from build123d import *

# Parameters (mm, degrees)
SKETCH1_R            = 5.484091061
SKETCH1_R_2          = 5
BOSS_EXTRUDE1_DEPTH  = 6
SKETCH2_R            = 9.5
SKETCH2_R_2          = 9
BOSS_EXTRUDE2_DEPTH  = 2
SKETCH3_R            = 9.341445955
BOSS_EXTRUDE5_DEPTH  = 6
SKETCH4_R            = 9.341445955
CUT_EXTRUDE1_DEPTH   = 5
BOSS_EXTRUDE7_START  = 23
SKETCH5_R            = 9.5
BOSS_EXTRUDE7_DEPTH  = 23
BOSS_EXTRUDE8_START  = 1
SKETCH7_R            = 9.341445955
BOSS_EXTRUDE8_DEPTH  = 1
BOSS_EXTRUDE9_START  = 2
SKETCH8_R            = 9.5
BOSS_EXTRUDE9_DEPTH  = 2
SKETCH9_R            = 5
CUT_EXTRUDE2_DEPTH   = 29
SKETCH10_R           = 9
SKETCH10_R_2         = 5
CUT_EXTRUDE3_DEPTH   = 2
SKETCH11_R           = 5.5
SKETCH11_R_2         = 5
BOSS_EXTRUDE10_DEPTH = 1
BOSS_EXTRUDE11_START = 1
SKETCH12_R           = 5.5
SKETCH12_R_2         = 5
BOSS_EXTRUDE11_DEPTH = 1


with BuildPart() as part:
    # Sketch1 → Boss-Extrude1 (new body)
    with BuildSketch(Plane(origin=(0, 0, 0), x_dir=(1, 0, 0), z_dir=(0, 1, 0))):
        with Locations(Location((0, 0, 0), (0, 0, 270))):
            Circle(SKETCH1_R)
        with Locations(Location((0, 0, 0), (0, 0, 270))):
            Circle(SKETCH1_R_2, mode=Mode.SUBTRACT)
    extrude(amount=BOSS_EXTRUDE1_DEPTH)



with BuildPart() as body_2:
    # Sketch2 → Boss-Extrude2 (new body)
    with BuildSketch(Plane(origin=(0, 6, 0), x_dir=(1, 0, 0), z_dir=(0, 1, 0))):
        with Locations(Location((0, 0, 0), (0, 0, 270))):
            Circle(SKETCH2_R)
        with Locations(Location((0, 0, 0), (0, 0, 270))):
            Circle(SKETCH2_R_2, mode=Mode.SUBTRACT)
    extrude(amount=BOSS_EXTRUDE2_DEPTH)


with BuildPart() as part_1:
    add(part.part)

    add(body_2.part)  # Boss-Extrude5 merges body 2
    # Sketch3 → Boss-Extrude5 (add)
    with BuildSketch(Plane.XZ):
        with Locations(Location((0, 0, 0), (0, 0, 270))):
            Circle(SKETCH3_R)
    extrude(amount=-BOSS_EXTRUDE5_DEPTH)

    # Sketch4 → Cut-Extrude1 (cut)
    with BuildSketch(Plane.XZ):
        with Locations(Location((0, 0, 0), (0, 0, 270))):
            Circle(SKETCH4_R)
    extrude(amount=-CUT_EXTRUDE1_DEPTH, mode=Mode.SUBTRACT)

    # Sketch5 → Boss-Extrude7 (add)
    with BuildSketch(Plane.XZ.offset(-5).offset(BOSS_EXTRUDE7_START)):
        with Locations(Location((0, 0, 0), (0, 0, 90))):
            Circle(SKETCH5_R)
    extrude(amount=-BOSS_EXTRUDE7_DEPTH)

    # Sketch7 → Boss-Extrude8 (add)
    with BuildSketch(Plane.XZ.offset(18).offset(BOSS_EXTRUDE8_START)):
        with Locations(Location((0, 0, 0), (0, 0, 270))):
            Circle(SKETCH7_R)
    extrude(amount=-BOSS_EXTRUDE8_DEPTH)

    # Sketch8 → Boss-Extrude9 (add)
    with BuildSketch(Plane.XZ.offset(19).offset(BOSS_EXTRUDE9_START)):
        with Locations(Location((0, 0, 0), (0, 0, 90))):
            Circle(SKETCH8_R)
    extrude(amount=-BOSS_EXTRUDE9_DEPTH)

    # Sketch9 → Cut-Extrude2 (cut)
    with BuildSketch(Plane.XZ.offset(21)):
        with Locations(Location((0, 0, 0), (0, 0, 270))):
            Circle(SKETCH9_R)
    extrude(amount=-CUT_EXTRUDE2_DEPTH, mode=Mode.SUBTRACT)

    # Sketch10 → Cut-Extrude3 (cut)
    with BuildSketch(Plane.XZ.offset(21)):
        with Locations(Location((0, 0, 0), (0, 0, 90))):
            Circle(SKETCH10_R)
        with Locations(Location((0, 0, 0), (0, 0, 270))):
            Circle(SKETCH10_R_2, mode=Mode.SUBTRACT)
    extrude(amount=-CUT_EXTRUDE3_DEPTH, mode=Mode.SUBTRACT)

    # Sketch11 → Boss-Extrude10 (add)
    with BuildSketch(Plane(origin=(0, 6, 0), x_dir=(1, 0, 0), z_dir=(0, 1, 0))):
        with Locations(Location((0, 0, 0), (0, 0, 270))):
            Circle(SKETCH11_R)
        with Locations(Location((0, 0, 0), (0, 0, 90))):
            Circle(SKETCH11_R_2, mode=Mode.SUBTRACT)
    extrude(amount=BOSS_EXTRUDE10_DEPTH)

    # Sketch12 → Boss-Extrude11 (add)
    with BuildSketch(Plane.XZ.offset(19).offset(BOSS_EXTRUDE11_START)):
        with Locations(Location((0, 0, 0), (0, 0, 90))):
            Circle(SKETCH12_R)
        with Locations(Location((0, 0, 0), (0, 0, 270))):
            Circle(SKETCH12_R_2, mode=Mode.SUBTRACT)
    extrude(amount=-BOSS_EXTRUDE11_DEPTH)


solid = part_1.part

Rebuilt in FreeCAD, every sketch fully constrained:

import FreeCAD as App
import Part
import Sketcher

V = App.Vector

doc = App.newDocument("Part")
body = doc.addObject("PartDesign::Body", "Body")

sketch1 = body.newObject("Sketcher::SketchObject", "Sketch")
sketch1.AttachmentSupport = (doc.getObject("XZ_Plane"), [""])
sketch1.MapMode = "FlatFace"
sketch1.addGeometry([
    Part.Circle(V(0, 0, 0), V(0, 0, 1), 5),
    Part.Circle(V(0, 0, 0), V(0, 0, 1), 5),
], False)
sketch1.addConstraint([
    Sketcher.Constraint("Coincident", 0, 3, -1, 1),
    Sketcher.Constraint("Coincident", 1, 3, -1, 1),
    Sketcher.Constraint("Diameter", 1, 10.0),
    Sketcher.Constraint("Diameter", 0, 10.968182),
])
pad1 = body.newObject("PartDesign::Pad", "Pad")
pad1.Profile = sketch1
pad1.Length = 6
pad1.Reversed = True
body2 = doc.addObject("PartDesign::Body", "Body001")

sketch2 = body2.newObject("Sketcher::SketchObject", "Sketch001")
sketch2.AttachmentSupport = (doc.getObject("XZ_Plane001"), [""])
sketch2.MapMode = "FlatFace"
sketch2.AttachmentOffset = App.Placement(V(0, 0, -6), App.Rotation())
sketch2.addGeometry([
    Part.Circle(V(0, 0, 0), V(0, 0, 1), 10),
    Part.Circle(V(0, 0, 0), V(0, 0, 1), 9),
], False)
sketch2.addConstraint([
    Sketcher.Constraint("Coincident", 0, 3, -1, 1),
    Sketcher.Constraint("Coincident", 1, 3, -1, 1),
    Sketcher.Constraint("Diameter", 0, 19.0),
    Sketcher.Constraint("Diameter", 1, 18.0),
])
pad2 = body2.newObject("PartDesign::Pad", "Pad001")
pad2.Profile = sketch2
pad2.Length = 2
pad2.Reversed = True
body.AllowCompound = True
doc.recompute()

boolean = body.newObject("PartDesign::Boolean", "Boolean")
boolean.Type = "Fuse"
boolean.addObjects([body2])

sketch3 = body.newObject("Sketcher::SketchObject", "Sketch002")
sketch3.AttachmentSupport = (doc.getObject("XZ_Plane"), [""])
sketch3.MapMode = "FlatFace"
sketch3.addGeometry(Part.Circle(V(0, 0, 0), V(0, 0, 1), 9), False)
sketch3.addConstraint([
    Sketcher.Constraint("Coincident", 0, 3, -1, 1),
    Sketcher.Constraint("Diameter", 0, 18.682892),
])
pad3 = body.newObject("PartDesign::Pad", "Pad002")
pad3.Profile = sketch3
pad3.Length = 6
pad3.Reversed = True

sketch4 = body.newObject("Sketcher::SketchObject", "Sketch003")
sketch4.AttachmentSupport = (doc.getObject("XZ_Plane"), [""])
sketch4.MapMode = "FlatFace"
sketch4.addGeometry(Part.Circle(V(0, 0, 0), V(0, 0, 1), 9), False)
sketch4.addConstraint([
    Sketcher.Constraint("Coincident", 0, 3, -1, 1),
    Sketcher.Constraint("Diameter", 0, 18.682892),
])
pocket1 = body.newObject("PartDesign::Pocket", "Pocket")
pocket1.Profile = sketch4
pocket1.Length = 5

sketch5 = body.newObject("Sketcher::SketchObject", "Sketch004")
sketch5.AttachmentSupport = (doc.getObject("XZ_Plane"), [""])
sketch5.MapMode = "FlatFace"
sketch5.AttachmentOffset = App.Placement(V(0, 0, 18), App.Rotation())
sketch5.addGeometry(Part.Circle(V(0, 0, 0), V(0, 0, 1), 10), False)
sketch5.addConstraint([
    Sketcher.Constraint("Coincident", 0, 3, -1, 1),
    Sketcher.Constraint("Diameter", 0, 19.0),
])
pad4 = body.newObject("PartDesign::Pad", "Pad003")
pad4.Profile = sketch5
pad4.Length = 23
pad4.Reversed = True

sketch6 = body.newObject("Sketcher::SketchObject", "Sketch005")
sketch6.AttachmentSupport = (doc.getObject("XZ_Plane"), [""])
sketch6.MapMode = "FlatFace"
sketch6.AttachmentOffset = App.Placement(V(0, 0, 19), App.Rotation())
sketch6.addGeometry(Part.Circle(V(0, 0, 0), V(0, 0, 1), 9), False)
sketch6.addConstraint([
    Sketcher.Constraint("Coincident", 0, 3, -1, 1),
    Sketcher.Constraint("Diameter", 0, 18.682892),
])
pad5 = body.newObject("PartDesign::Pad", "Pad004")
pad5.Profile = sketch6
pad5.Length = 1
pad5.Reversed = True

sketch7 = body.newObject("Sketcher::SketchObject", "Sketch006")
sketch7.AttachmentSupport = (doc.getObject("XZ_Plane"), [""])
sketch7.MapMode = "FlatFace"
sketch7.AttachmentOffset = App.Placement(V(0, 0, 21), App.Rotation())
sketch7.addGeometry(Part.Circle(V(0, 0, 0), V(0, 0, 1), 10), False)
sketch7.addConstraint([
    Sketcher.Constraint("Coincident", 0, 3, -1, 1),
    Sketcher.Constraint("Diameter", 0, 19.0),
])
pad6 = body.newObject("PartDesign::Pad", "Pad005")
pad6.Profile = sketch7
pad6.Length = 2
pad6.Reversed = True

sketch8 = body.newObject("Sketcher::SketchObject", "Sketch007")
sketch8.AttachmentSupport = (doc.getObject("XZ_Plane"), [""])
sketch8.MapMode = "FlatFace"
sketch8.AttachmentOffset = App.Placement(V(0, 0, 21), App.Rotation())
sketch8.addGeometry(Part.Circle(V(0, 0, 0), V(0, 0, 1), 5), False)
sketch8.addConstraint([
    Sketcher.Constraint("Coincident", 0, 3, -1, 1),
    Sketcher.Constraint("Diameter", 0, 10.0),
])
pocket2 = body.newObject("PartDesign::Pocket", "Pocket001")
pocket2.Profile = sketch8
pocket2.Length = 29

sketch9 = body.newObject("Sketcher::SketchObject", "Sketch008")
sketch9.AttachmentSupport = (doc.getObject("XZ_Plane"), [""])
sketch9.MapMode = "FlatFace"
sketch9.AttachmentOffset = App.Placement(V(0, 0, 21), App.Rotation())
sketch9.addGeometry([
    Part.Circle(V(0, 0, 0), V(0, 0, 1), 9),
    Part.Circle(V(0, 0, 0), V(0, 0, 1), 5),
], False)
sketch9.addConstraint([
    Sketcher.Constraint("Coincident", 0, 3, -1, 1),
    Sketcher.Constraint("Coincident", 1, 3, -1, 1),
    Sketcher.Constraint("Diameter", 0, 18.0),
    Sketcher.Constraint("Diameter", 1, 10.0),
])
pocket3 = body.newObject("PartDesign::Pocket", "Pocket002")
pocket3.Profile = sketch9
pocket3.Length = 2

sketch10 = body.newObject("Sketcher::SketchObject", "Sketch009")
sketch10.AttachmentSupport = (doc.getObject("XZ_Plane"), [""])
sketch10.MapMode = "FlatFace"
sketch10.AttachmentOffset = App.Placement(V(0, 0, -6), App.Rotation())
sketch10.addGeometry([
    Part.Circle(V(0, 0, 0), V(0, 0, 1), 6),
    Part.Circle(V(0, 0, 0), V(0, 0, 1), 5),
], False)
sketch10.addConstraint([
    Sketcher.Constraint("Coincident", 0, 3, -1, 1),
    Sketcher.Constraint("Coincident", 1, 3, -1, 1),
    Sketcher.Constraint("Diameter", 0, 11.0),
    Sketcher.Constraint("Diameter", 1, 10.0),
])
pad7 = body.newObject("PartDesign::Pad", "Pad006")
pad7.Profile = sketch10
pad7.Length = 1
pad7.Reversed = True

sketch11 = body.newObject("Sketcher::SketchObject", "Sketch010")
sketch11.AttachmentSupport = (doc.getObject("XZ_Plane"), [""])
sketch11.MapMode = "FlatFace"
sketch11.AttachmentOffset = App.Placement(V(0, 0, 20), App.Rotation())
sketch11.addGeometry([
    Part.Circle(V(0, 0, 0), V(0, 0, 1), 6),
    Part.Circle(V(0, 0, 0), V(0, 0, 1), 5),
], False)
sketch11.addConstraint([
    Sketcher.Constraint("Coincident", 0, 3, -1, 1),
    Sketcher.Constraint("Coincident", 1, 3, -1, 1),
    Sketcher.Constraint("Diameter", 0, 11.0),
    Sketcher.Constraint("Diameter", 1, 10.0),
])
pad8 = body.newObject("PartDesign::Pad", "Pad007")
pad8.Profile = sketch11
pad8.Length = 1
pad8.Reversed = True

doc.recompute()
